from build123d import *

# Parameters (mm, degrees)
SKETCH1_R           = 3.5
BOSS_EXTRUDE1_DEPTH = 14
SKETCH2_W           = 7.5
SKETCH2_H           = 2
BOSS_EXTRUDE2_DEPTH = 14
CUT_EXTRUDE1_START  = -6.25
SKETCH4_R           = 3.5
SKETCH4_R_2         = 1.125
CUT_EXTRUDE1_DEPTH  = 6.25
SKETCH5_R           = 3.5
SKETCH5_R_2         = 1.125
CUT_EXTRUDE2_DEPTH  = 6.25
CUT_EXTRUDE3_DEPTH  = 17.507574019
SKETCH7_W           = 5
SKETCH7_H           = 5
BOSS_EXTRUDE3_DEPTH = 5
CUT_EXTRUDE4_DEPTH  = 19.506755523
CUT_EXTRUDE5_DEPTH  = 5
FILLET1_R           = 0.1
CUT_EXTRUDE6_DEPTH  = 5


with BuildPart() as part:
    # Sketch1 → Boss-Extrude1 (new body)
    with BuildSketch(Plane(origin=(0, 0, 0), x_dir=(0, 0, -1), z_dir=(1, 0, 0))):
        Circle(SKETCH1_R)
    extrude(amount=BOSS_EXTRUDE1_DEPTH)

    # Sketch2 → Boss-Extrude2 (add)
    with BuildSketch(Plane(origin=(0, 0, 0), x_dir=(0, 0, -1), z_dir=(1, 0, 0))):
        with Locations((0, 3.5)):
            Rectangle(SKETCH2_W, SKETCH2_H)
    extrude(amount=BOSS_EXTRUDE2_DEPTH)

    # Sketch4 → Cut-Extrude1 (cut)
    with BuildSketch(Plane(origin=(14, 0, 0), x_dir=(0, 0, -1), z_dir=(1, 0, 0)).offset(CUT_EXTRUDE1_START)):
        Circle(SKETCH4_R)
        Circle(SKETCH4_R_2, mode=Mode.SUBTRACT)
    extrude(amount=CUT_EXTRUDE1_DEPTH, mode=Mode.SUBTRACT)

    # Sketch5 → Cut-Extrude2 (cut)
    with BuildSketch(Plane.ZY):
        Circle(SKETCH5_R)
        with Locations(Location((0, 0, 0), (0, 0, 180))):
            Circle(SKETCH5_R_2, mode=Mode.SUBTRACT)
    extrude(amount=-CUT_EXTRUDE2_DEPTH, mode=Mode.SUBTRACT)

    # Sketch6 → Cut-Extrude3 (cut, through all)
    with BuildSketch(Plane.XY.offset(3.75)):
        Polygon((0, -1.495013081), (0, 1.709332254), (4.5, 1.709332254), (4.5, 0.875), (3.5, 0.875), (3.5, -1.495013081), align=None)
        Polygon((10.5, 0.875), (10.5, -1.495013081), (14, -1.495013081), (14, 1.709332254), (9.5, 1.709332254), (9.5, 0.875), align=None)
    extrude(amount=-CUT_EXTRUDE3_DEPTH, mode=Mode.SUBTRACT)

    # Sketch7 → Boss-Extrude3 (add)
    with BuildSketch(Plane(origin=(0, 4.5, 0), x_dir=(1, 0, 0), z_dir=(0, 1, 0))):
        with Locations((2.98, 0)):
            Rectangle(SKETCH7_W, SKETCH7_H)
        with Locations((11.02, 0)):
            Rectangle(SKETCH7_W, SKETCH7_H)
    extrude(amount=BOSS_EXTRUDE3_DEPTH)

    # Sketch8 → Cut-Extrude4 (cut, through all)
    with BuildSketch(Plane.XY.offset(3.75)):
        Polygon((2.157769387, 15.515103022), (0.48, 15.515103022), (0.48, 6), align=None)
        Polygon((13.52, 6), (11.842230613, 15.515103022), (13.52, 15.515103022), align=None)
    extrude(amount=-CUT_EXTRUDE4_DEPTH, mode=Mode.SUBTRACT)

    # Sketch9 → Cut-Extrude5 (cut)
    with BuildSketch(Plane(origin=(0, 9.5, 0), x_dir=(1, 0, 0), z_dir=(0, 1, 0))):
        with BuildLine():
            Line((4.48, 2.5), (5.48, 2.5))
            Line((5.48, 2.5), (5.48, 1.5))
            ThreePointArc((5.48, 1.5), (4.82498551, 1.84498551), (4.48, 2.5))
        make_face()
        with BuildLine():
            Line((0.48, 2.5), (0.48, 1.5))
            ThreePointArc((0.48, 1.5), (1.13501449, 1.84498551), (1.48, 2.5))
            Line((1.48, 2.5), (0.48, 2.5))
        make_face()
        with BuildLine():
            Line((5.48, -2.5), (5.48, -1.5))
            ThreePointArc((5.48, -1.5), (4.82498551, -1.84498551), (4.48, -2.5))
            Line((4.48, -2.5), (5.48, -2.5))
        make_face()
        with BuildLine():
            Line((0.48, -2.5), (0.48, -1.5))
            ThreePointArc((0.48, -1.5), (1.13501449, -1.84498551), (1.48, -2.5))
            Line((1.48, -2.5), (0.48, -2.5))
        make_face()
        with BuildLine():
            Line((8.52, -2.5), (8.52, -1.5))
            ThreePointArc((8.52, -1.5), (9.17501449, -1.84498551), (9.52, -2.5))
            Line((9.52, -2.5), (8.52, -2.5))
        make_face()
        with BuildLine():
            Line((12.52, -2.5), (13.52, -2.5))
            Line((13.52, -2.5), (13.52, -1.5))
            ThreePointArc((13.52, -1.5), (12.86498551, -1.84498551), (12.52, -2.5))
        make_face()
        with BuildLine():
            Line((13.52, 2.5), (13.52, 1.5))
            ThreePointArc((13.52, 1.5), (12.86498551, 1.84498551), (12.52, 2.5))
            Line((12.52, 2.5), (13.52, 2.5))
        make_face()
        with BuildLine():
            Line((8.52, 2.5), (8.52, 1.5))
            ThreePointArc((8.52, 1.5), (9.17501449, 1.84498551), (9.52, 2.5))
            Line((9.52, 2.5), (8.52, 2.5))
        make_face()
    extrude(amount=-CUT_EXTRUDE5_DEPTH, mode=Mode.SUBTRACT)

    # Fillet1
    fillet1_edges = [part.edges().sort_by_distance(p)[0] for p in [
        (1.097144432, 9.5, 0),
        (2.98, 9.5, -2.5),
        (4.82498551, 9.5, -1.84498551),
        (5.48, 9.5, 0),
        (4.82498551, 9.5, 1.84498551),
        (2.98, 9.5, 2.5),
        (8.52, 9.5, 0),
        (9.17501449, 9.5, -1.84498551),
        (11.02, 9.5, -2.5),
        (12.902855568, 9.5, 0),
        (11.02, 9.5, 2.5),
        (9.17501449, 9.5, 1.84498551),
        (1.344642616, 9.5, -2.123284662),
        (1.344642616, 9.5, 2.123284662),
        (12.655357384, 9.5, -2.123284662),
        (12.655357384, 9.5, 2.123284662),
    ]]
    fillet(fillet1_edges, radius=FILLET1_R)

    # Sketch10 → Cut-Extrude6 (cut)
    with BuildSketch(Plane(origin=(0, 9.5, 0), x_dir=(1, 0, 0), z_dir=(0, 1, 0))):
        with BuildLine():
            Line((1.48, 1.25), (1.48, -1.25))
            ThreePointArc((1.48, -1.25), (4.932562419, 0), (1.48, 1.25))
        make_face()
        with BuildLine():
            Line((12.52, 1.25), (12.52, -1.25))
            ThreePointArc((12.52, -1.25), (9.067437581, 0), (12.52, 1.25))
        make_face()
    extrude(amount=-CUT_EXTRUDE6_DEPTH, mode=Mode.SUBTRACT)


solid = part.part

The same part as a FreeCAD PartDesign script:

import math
import FreeCAD as App
import Part
import Sketcher

V = App.Vector
Q = App.Units.Quantity


def edges_at(feature, points):
    """Names of the edges that pass closest to the given points."""
    edges = feature.Shape.Edges
    near = lambda p: min(range(len(edges)), key=lambda i: edges[i].distToShape(Part.Vertex(*p))[0])
    return sorted({f"Edge{near(p) + 1}" for p in points})


def add_polygon(sketch, points):
    """Adds a closed chain of lines whose ends are joined by coincident constraints."""
    first, n = sketch.GeometryCount, len(points)
    for a, b in zip(points, points[1:] + points[:1]):
        sketch.addGeometry(Part.LineSegment(App.Vector(*a, 0), App.Vector(*b, 0)), False)
    for i in range(n):
        sketch.addConstraint(Sketcher.Constraint("Coincident", first + i, 2, first + (i + 1) % n, 1))

doc = App.newDocument("Part")
params = doc.addObject("Spreadsheet::Sheet", "Params")
for row, (alias, value) in enumerate([
    ("sketch1_diameter", "7 mm"),
    ("pad1_length", "14 mm"),
    ("sketch2_width", "2 mm"),
    ("sketch2_height", "7.5 mm"),
    ("pad2_length", "14 mm"),
    ("sketch3_diameter", "7 mm"),
    ("sketch3_diameter2", "2.25 mm"),
    ("pocket1_length", "6.25 mm"),
    ("sketch4_diameter", "7 mm"),
    ("sketch4_diameter2", "2.25 mm"),
    ("pocket2_length", "6.25 mm"),
    ("sketch5_width", "1 mm"),
    ("sketch5_width2", "3.5 mm"),
    ("sketch6_width", "5 mm"),
    ("pad3_length", "5 mm"),
    ("sketch8_width", "1 mm"),
    ("sketch8_radius", "1.25 mm"),
    ("pocket5_length", "5 mm"),
    ("fillet_radius", "0.1 mm"),
    ("sketch9_height", "2.5 mm"),
    ("pocket6_length", "5 mm"),
], start=1):
    params.set(f"A{row}", alias)
    params.set(f"B{row}", "=" + value)
    params.setAlias(f"B{row}", alias)

body = doc.addObject("PartDesign::Body", "Body")

# Sketch on YZ plane
sketch1 = doc.addObject("Sketcher::SketchObject", "Sketch")
body.addObject(sketch1)
sketch1.AttachmentSupport = (doc.YZ_Plane, [""])
sketch1.MapMode = "FlatFace"
sketch1.addGeometry(Part.Circle(V(0, 0, 0), V(0, 0, 1), 3.5), False)
sketch1.addConstraint([
    Sketcher.Constraint("Coincident", 0, 3, -1, 1),
    Sketcher.Constraint("Diameter", 0, Q("7 mm")),
])
sketch1.setExpression("Constraints[1]", "Params.sketch1_diameter")
pad1 = doc.addObject("PartDesign::Pad", "Pad")
body.addObject(pad1)
pad1.Profile = sketch1
pad1.setExpression("Length", "Params.pad1_length")

# Sketch on YZ plane
sketch2 = doc.addObject("Sketcher::SketchObject", "Sketch001")
body.addObject(sketch2)
sketch2.AttachmentSupport = (doc.YZ_Plane, [""])
sketch2.MapMode = "FlatFace"
add_polygon(sketch2, [(4.5, 3.8), (2.5, 3.8), (2.5, -3.8), (4.5, -3.8)])  # lines 0-3
sketch2.addConstraint([
    Sketcher.Constraint("Horizontal", 0),
    Sketcher.Constraint("Vertical", 1),
    Sketcher.Constraint("Horizontal", 2),
    Sketcher.Constraint("Vertical", 3),
    Sketcher.Constraint("DistanceX", 0, 2, 0, 1, Q("2 mm")),
    Sketcher.Constraint("DistanceY", 1, 2, 1, 1, Q("7.5 mm")),
    Sketcher.Constraint("DistanceX", -1, 1, 0, 2, Q("2.5 mm")),
    Sketcher.Constraint("DistanceY", -1, 1, 0, 2, Q("3.75 mm")),
])
sketch2.setExpression("Constraints[8]", "Params.sketch2_width")
sketch2.setExpression("Constraints[9]", "Params.sketch2_height")
pad2 = doc.addObject("PartDesign::Pad", "Pad001")
body.addObject(pad2)
pad2.Profile = sketch2
pad2.setExpression("Length", "Params.pad2_length")

# Sketch on YZ plane
sketch3 = doc.addObject("Sketcher::SketchObject", "Sketch002")
body.addObject(sketch3)
sketch3.AttachmentSupport = (doc.YZ_Plane, [""])
sketch3.MapMode = "FlatFace"
sketch3.AttachmentOffset = App.Placement(V(0, 0, 7.75), App.Rotation())
sketch3.addGeometry([
    Part.Circle(V(0, 0, 0), V(0, 0, 1), 3.5),
    Part.Circle(V(0, 0, 0), V(0, 0, 1), 1.1),
], False)
sketch3.addConstraint([
    Sketcher.Constraint("Coincident", 0, 3, -1, 1),
    Sketcher.Constraint("Coincident", 1, 3, -1, 1),
    Sketcher.Constraint("Diameter", 0, Q("7 mm")),
    Sketcher.Constraint("Diameter", 1, Q("2.25 mm")),
])
sketch3.setExpression("Constraints[2]", "Params.sketch3_diameter")
sketch3.setExpression("Constraints[3]", "Params.sketch3_diameter2")
pocket1 = doc.addObject("PartDesign::Pocket", "Pocket")
body.addObject(pocket1)
pocket1.Profile = sketch3
pocket1.setExpression("Length", "Params.pocket1_length")
pocket1.Reversed = True

# Sketch on YZ plane
sketch4 = doc.addObject("Sketcher::SketchObject", "Sketch003")
body.addObject(sketch4)
sketch4.AttachmentSupport = (doc.YZ_Plane, [""])
sketch4.MapMode = "FlatFace"
sketch4.addGeometry([
    Part.Circle(V(0, 0, 0), V(0, 0, 1), 3.5),
    Part.Circle(V(0, 0, 0), V(0, 0, 1), 1.1),
], False)
sketch4.addConstraint([
    Sketcher.Constraint("Coincident", 0, 3, -1, 1),
    Sketcher.Constraint("Coincident", 1, 3, -1, 1),
    Sketcher.Constraint("Diameter", 0, Q("7 mm")),
    Sketcher.Constraint("Diameter", 1, Q("2.25 mm")),
])
sketch4.setExpression("Constraints[2]", "Params.sketch4_diameter")
sketch4.setExpression("Constraints[3]", "Params.sketch4_diameter2")
pocket2 = doc.addObject("PartDesign::Pocket", "Pocket001")
body.addObject(pocket2)
pocket2.Profile = sketch4
pocket2.setExpression("Length", "Params.pocket2_length")
pocket2.Reversed = True

# Sketch on XY plane
sketch5 = doc.addObject("Sketcher::SketchObject", "Sketch004")
body.addObject(sketch5)
sketch5.AttachmentSupport = (doc.XY_Plane, [""])
sketch5.MapMode = "FlatFace"
sketch5.AttachmentOffset = App.Placement(V(0, 0, 3.75), App.Rotation())
add_polygon(sketch5, [(0, 1.7), (0, -1.5), (3.5, -1.5), (3.5, 0.9), (4.5, 0.9), (4.5, 1.7)])  # lines 0-5
add_polygon(sketch5, [(10.5, 0.9), (10.5, -1.5), (14, -1.5), (14, 1.7), (9.5, 1.7), (9.5, 0.9)])  # lines 6-11
sketch5.addConstraint([
    Sketcher.Constraint("Vertical", 0),
    Sketcher.Constraint("Horizontal", 1),
    Sketcher.Constraint("Vertical", 2),
    Sketcher.Constraint("Horizontal", 3),
    Sketcher.Constraint("Vertical", 4),
    Sketcher.Constraint("Horizontal", 5),
    Sketcher.Constraint("Vertical", 6),
    Sketcher.Constraint("Horizontal", 7),
    Sketcher.Constraint("Vertical", 8),
    Sketcher.Constraint("Horizontal", 9),
    Sketcher.Constraint("Vertical", 10),
    Sketcher.Constraint("Horizontal", 11),
    Sketcher.Constraint("PointOnObject", 0, 2, -2),
    Sketcher.Constraint("Horizontal", 1, 2, 6, 2),
    Sketcher.Constraint("Horizontal", 5, 2, 8, 2),
    Sketcher.Constraint("Horizontal", 3, 2, 10, 2),
    Sketcher.Constraint("Equal", 1, 7),
    Sketcher.Constraint("Equal", 5, 9),
    Sketcher.Constraint("DistanceX", 3, 1, 3, 2, Q("1 mm")),
    Sketcher.Constraint("DistanceX", 1, 1, 1, 2, Q("3.5 mm")),
    Sketcher.Constraint("DistanceX", -1, 1, 7, 2, Q("14 mm")),
    Sketcher.Constraint("DistanceY", -1, 1, 2, 2, Q("0.875 mm")),
    Sketcher.Constraint("DistanceY", 0, 2, 0, 1, Q("3.204345 mm")),
    Sketcher.Constraint("DistanceY", 2, 1, 2, 2, Q("2.370013 mm")),
])
sketch5.setExpression("Constraints[30]", "Params.sketch5_width")
sketch5.setExpression("Constraints[31]", "Params.sketch5_width2")
pocket3 = doc.addObject("PartDesign::Pocket", "Pocket002")
body.addObject(pocket3)
pocket3.Profile = sketch5
pocket3.Type = "ThroughAll"

# Sketch on XZ plane
sketch6 = doc.addObject("Sketcher::SketchObject", "Sketch005")
body.addObject(sketch6)
sketch6.AttachmentSupport = (doc.XZ_Plane, [""])
sketch6.MapMode = "FlatFace"
sketch6.AttachmentOffset = App.Placement(V(0, 0, -4.5), App.Rotation())
add_polygon(sketch6, [(0, -2), (0, 2), (5, 2), (5, -2)])  # lines 0-3
add_polygon(sketch6, [(9, -2), (9, 2), (14, 2), (14, -2)])  # lines 4-7
sketch6.addConstraint([
    Sketcher.Constraint("Vertical", 0),
    Sketcher.Constraint("Horizontal", 1),
    Sketcher.Constraint("Vertical", 2),
    Sketcher.Constraint("Horizontal", 3),
    Sketcher.Constraint("Vertical", 4),
    Sketcher.Constraint("Horizontal", 5),
    Sketcher.Constraint("Vertical", 6),
    Sketcher.Constraint("Horizontal", 7),
    Sketcher.Constraint("Horizontal", 1, 2, 4, 2),
    Sketcher.Constraint("Horizontal", 3, 2, 6, 2),
    Sketcher.Constraint("Equal", 3, 5),
    Sketcher.Constraint("Equal", 7, 0),
    Sketcher.Constraint("DistanceX", 1, 1, 1, 2, Q("5 mm")),
    Sketcher.Constraint("DistanceY", -1, 1, 0, 2, Q("2.5 mm")),
    Sketcher.Constraint("DistanceX", -1, 1, 0, 2, Q("0.48 mm")),
    Sketcher.Constraint("DistanceX", -1, 1, 4, 2, Q("8.52 mm")),
])
sketch6.setExpression("Constraints[20]", "Params.sketch6_width")
pad3 = doc.addObject("PartDesign::Pad", "Pad002")
body.addObject(pad3)
pad3.Profile = sketch6
pad3.setExpression("Length", "Params.pad3_length")
pad3.Reversed = True

# Sketch on XY plane
sketch7 = doc.addObject("Sketcher::SketchObject", "Sketch006")
body.addObject(sketch7)
sketch7.AttachmentSupport = (doc.XY_Plane, [""])
sketch7.MapMode = "FlatFace"
sketch7.AttachmentOffset = App.Placement(V(0, 0, 3.75), App.Rotation())
add_polygon(sketch7, [(2.2, 15.5), (0.5, 15.5), (0.5, 6)])  # lines 0-2
add_polygon(sketch7, [(11.8, 15.5), (13.5, 6), (13.5, 15.5)])  # lines 3-5
sketch7.addConstraint([
    Sketcher.Constraint("Horizontal", 0),
    Sketcher.Constraint("Vertical", 1),
    Sketcher.Constraint("Vertical", 4),
    Sketcher.Constraint("Horizontal", 5),
    Sketcher.Constraint("Horizontal", 1, 2, 3, 2),
    Sketcher.Constraint("Horizontal", 2, 2, 4, 2),
    Sketcher.Constraint("Equal", 0, 5),
    Sketcher.Constraint("Angle", 2, Q("80 deg")),
    Sketcher.Constraint("DistanceY", -1, 1, 1, 2, Q("6 mm")),
    Sketcher.Constraint("DistanceX", -1, 1, 0, 2, Q("0.48 mm")),
    Sketcher.Constraint("DistanceX", -1, 1, 3, 2, Q("13.52 mm")),
    Sketcher.Constraint("DistanceX", 0, 2, 0, 1, Q("1.677769 mm")),
])
pocket4 = doc.addObject("PartDesign::Pocket", "Pocket003")
body.addObject(pocket4)
pocket4.Profile = sketch7
pocket4.Type = "ThroughAll"

# Sketch on XZ plane
sketch8 = doc.addObject("Sketcher::SketchObject", "Sketch007")
body.addObject(sketch8)
sketch8.AttachmentSupport = (doc.XZ_Plane, [""])
sketch8.MapMode = "FlatFace"
sketch8.AttachmentOffset = App.Placement(V(0, 0, -9.5), App.Rotation())
sketch8.addGeometry([
    Part.LineSegment(V(5.5, -2.5, 0), V(4.5, -2.5, 0)),  # 0
    Part.ArcOfCircle(Part.Circle(V(5.7, -2.7, 0), V(0, 0, 1), 1.2), math.radians(101), math.radians(169)),  # 1
    Part.LineSegment(V(5.5, -1.5, 0), V(5.5, -2.5, 0)),  # 2
    Part.LineSegment(V(0.5, -2.5, 0), V(0.5, -1.5, 0)),  # 3
    Part.ArcOfCircle(Part.Circle(V(0.3, -2.7, 0), V(0, 0, 1), 1.2), math.radians(11), math.radians(79)),  # 4
    Part.LineSegment(V(1.5, -2.5, 0), V(0.5, -2.5, 0)),  # 5
    Part.LineSegment(V(5.5, 2.5, 0), V(5.5, 1.5, 0)),  # 6
    Part.ArcOfCircle(Part.Circle(V(5.7, 2.7, 0), V(0, 0, 1), 1.2), math.radians(-169), math.radians(-101)),  # 7
    Part.LineSegment(V(4.5, 2.5, 0), V(5.5, 2.5, 0)),  # 8
    Part.LineSegment(V(0.5, 1.5, 0), V(0.5, 2.5, 0)),  # 9
    Part.LineSegment(V(0.5, 2.5, 0), V(1.5, 2.5, 0)),  # 10
    Part.ArcOfCircle(Part.Circle(V(0.3, 2.7, 0), V(0, 0, 1), 1.2), math.radians(-79), math.radians(-11)),  # 11
    Part.LineSegment(V(8.5, 1.5, 0), V(8.5, 2.5, 0)),  # 12
    Part.LineSegment(V(8.5, 2.5, 0), V(9.5, 2.5, 0)),  # 13
    Part.ArcOfCircle(Part.Circle(V(8.3, 2.7, 0), V(0, 0, 1), 1.2), math.radians(-79), math.radians(-11)),  # 14
    Part.LineSegment(V(12.5, 2.5, 0), V(13.5, 2.5, 0)),  # 15
    Part.LineSegment(V(13.5, 2.5, 0), V(13.5, 1.5, 0)),  # 16
    Part.ArcOfCircle(Part.Circle(V(13.7, 2.7, 0), V(0, 0, 1), 1.2), math.radians(-169), math.radians(-101)),  # 17
    Part.LineSegment(V(13.5, -1.5, 0), V(13.5, -2.5, 0)),  # 18
    Part.LineSegment(V(13.5, -2.5, 0), V(12.5, -2.5, 0)),  # 19
    Part.ArcOfCircle(Part.Circle(V(13.7, -2.7, 0), V(0, 0, 1), 1.2), math.radians(101), math.radians(169)),  # 20
    Part.LineSegment(V(8.5, -2.5, 0), V(8.5, -1.5, 0)),  # 21
    Part.ArcOfCircle(Part.Circle(V(8.3, -2.7, 0), V(0, 0, 1), 1.2), math.radians(11), math.radians(79)),  # 22
    Part.LineSegment(V(9.5, -2.5, 0), V(8.5, -2.5, 0)),  # 23
], False)
sketch8.addConstraint([
    Sketcher.Constraint("Coincident", 0, 2, 1, 2),
    Sketcher.Constraint("Coincident", 1, 1, 2, 1),
    Sketcher.Constraint("Coincident", 2, 2, 0, 1),
    Sketcher.Constraint("Coincident", 3, 2, 4, 2),
    Sketcher.Constraint("Coincident", 4, 1, 5, 1),
    Sketcher.Constraint("Coincident", 5, 2, 3, 1),
    Sketcher.Constraint("Coincident", 6, 2, 7, 2),
    Sketcher.Constraint("Coincident", 7, 1, 8, 1),
    Sketcher.Constraint("Coincident", 8, 2, 6, 1),
    Sketcher.Constraint("Coincident", 9, 2, 10, 1),
    Sketcher.Constraint("Coincident", 10, 2, 11, 2),
    Sketcher.Constraint("Coincident", 11, 1, 9, 1),
    Sketcher.Constraint("Coincident", 12, 2, 13, 1),
    Sketcher.Constraint("Coincident", 13, 2, 14, 2),
    Sketcher.Constraint("Coincident", 14, 1, 12, 1),
    Sketcher.Constraint("Coincident", 15, 2, 16, 1),
    Sketcher.Constraint("Coincident", 16, 2, 17, 2),
    Sketcher.Constraint("Coincident", 17, 1, 15, 1),
    Sketcher.Constraint("Coincident", 18, 2, 19, 1),
    Sketcher.Constraint("Coincident", 19, 2, 20, 2),
    Sketcher.Constraint("Coincident", 20, 1, 18, 1),
    Sketcher.Constraint("Coincident", 21, 2, 22, 2),
    Sketcher.Constraint("Coincident", 22, 1, 23, 1),
    Sketcher.Constraint("Coincident", 23, 2, 21, 1),
    Sketcher.Constraint("Horizontal", 0),
    Sketcher.Constraint("Vertical", 2),
    Sketcher.Constraint("Vertical", 3),
    Sketcher.Constraint("Horizontal", 5),
    Sketcher.Constraint("Vertical", 6),
    Sketcher.Constraint("Horizontal", 8),
    Sketcher.Constraint("Vertical", 9),
    Sketcher.Constraint("Horizontal", 10),
    Sketcher.Constraint("Vertical", 12),
    Sketcher.Constraint("Horizontal", 13),
    Sketcher.Constraint("Horizontal", 15),
    Sketcher.Constraint("Vertical", 16),
    Sketcher.Constraint("Vertical", 18),
    Sketcher.Constraint("Horizontal", 19),
    Sketcher.Constraint("Vertical", 21),
    Sketcher.Constraint("Horizontal", 23),
    Sketcher.Constraint("Equal", 1, 4),
    Sketcher.Constraint("Equal", 4, 7),
    Sketcher.Constraint("Equal", 7, 11),
    Sketcher.Constraint("Equal", 11, 14),
    Sketcher.Constraint("Equal", 14, 17),
    Sketcher.Constraint("Equal", 17, 20),
    Sketcher.Constraint("Equal", 20, 22),
    Sketcher.Constraint("Symmetric", 1, 3, 7, 3, -1),
    Sketcher.Constraint("Symmetric", 4, 3, 11, 3, -1),
    Sketcher.Constraint("Symmetric", 17, 3, 20, 3, -1),
    Sketcher.Constraint("Symmetric", 14, 3, 22, 3, -1),
    Sketcher.Constraint("Symmetric", 2, 2, 8, 2, -1),
    Sketcher.Constraint("Symmetric", 5, 2, 9, 2, -1),
    Sketcher.Constraint("Symmetric", 15, 2, 18, 2, -1),
    Sketcher.Constraint("Symmetric", 12, 2, 23, 2, -1),
    Sketcher.Constraint("Horizontal", 1, 3, 4, 3),
    Sketcher.Constraint("Horizontal", 11, 3, 14, 3),
    Sketcher.Constraint("Horizontal", 14, 3, 17, 3),
    Sketcher.Constraint("Horizontal", 1, 1, 3, 2),
    Sketcher.Constraint("Horizontal", 2, 2, 4, 1),
    Sketcher.Constraint("Horizontal", 10, 2, 12, 2),
    Sketcher.Constraint("Horizontal", 11, 1, 14, 1),
    Sketcher.Constraint("Horizontal", 13, 2, 15, 2),
    Sketcher.Constraint("Horizontal", 14, 1, 16, 2),
    Sketcher.Constraint("Equal", 23, 2),
    Sketcher.Constraint("DistanceX", 0, 2, 0, 1, Q("1 mm")),
    Sketcher.Constraint("Radius", 1, Q("1.25 mm")),
    Sketcher.Constraint("DistanceX", 3, 2, 0, 2, Q("4 mm")),
    Sketcher.Constraint("DistanceY", 1, 1, 6, 2, Q("3 mm")),
    Sketcher.Constraint("DistanceX", 13, 2, 15, 2, Q("4 mm")),
    Sketcher.Constraint("DistanceX", -1, 1, 0, 2, Q("4.48 mm")),
    Sketcher.Constraint("DistanceX", -1, 1, 12, 2, Q("8.52 mm")),
])
sketch8.setExpression("Constraints[65]", "Params.sketch8_width")
sketch8.setExpression("Constraints[66]", "Params.sketch8_radius")
pocket5 = doc.addObject("PartDesign::Pocket", "Pocket004")
body.addObject(pocket5)
pocket5.Profile = sketch8
pocket5.setExpression("Length", "Params.pocket5_length")
pocket5.Reversed = True
doc.recompute()

fillet = doc.addObject("PartDesign::Fillet", "Fillet")
body.addObject(fillet)
fillet.Base = (pocket5, edges_at(pocket5, [
    (1.097, 9.5, 0),
    (2.98, 9.5, -2.5),
    (4.825, 9.5, -1.845),
    (5.48, 9.5, 0),
    (4.825, 9.5, 1.845),
    (2.98, 9.5, 2.5),
    (8.52, 9.5, 0),
    (9.175, 9.5, -1.845),
    (11.02, 9.5, -2.5),
    (12.903, 9.5, 0),
    (11.02, 9.5, 2.5),
    (9.175, 9.5, 1.845),
    (1.345, 9.5, -2.123),
    (1.345, 9.5, 2.123),
    (12.655, 9.5, -2.123),
    (12.655, 9.5, 2.123),
]))
fillet.setExpression("Radius", "Params.fillet_radius")

# Sketch on XZ plane
sketch9 = doc.addObject("Sketcher::SketchObject", "Sketch008")
body.addObject(sketch9)
sketch9.AttachmentSupport = (doc.XZ_Plane, [""])
sketch9.MapMode = "FlatFace"
sketch9.AttachmentOffset = App.Placement(V(0, 0, -9.5), App.Rotation())
sketch9.addGeometry([
    Part.LineSegment(V(1.5, -1.2, 0), V(1.5, 1.2, 0)),
    Part.ArcOfCircle(Part.Circle(V(3, 0, 0), V(0, 0, 1), 2), math.radians(-140), math.radians(140)),
    Part.LineSegment(V(12.5, 1.2, 0), V(12.5, -1.2, 0)),
    Part.ArcOfCircle(Part.Circle(V(11, 0, 0), V(0, 0, 1), 2), math.radians(40), math.radians(320)),
], False)
sketch9.addConstraint([
    Sketcher.Constraint("Coincident", 0, 1, 1, 1),
    Sketcher.Constraint("Coincident", 1, 2, 0, 2),
    Sketcher.Constraint("Coincident", 2, 1, 3, 1),
    Sketcher.Constraint("Coincident", 3, 2, 2, 2),
    Sketcher.Constraint("Vertical", 0),
    Sketcher.Constraint("Vertical", 2),
    Sketcher.Constraint("Equal", 1, 3),
    Sketcher.Constraint("PointOnObject", 1, 3, -1),
    Sketcher.Constraint("PointOnObject", 3, 3, -1),
    Sketcher.Constraint("Horizontal", 1, 2, 2, 1),
    Sketcher.Constraint("DistanceY", 0, 1, 0, 2, Q("2.5 mm")),
    Sketcher.Constraint("DistanceX", 0, 1, 1, 3, Q("1.5 mm")),
    Sketcher.Constraint("DistanceX", -1, 1, 1, 3, Q("2.98 mm")),
    Sketcher.Constraint("DistanceX", -1, 1, 3, 3, Q("11.02 mm")),
])
sketch9.setExpression("Constraints[10]", "Params.sketch9_height")
pocket6 = doc.addObject("PartDesign::Pocket", "Pocket005")
body.addObject(pocket6)
pocket6.Profile = sketch9
pocket6.setExpression("Length", "Params.pocket6_length")
pocket6.Reversed = True

doc.recompute()
